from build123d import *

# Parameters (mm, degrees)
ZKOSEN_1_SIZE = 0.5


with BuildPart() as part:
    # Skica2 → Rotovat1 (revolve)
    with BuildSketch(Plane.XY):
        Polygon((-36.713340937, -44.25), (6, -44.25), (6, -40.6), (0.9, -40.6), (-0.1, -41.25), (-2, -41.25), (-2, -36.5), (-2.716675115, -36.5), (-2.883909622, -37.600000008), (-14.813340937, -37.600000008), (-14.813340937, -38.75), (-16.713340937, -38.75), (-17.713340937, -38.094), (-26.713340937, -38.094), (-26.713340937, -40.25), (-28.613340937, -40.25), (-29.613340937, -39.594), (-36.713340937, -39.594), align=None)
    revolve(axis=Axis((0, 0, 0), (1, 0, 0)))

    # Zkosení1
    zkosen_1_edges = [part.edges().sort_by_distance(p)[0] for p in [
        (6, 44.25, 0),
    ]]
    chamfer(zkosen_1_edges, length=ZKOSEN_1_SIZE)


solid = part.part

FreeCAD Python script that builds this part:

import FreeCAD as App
import Part
import Sketcher
from FreeCAD import Vector


def edges_at(feature, points):
    """Names of the edges that pass closest to the given points."""
    edges = feature.Shape.Edges
    near = lambda p: min(range(len(edges)), key=lambda i: edges[i].distToShape(Part.Vertex(*p))[0])
    return sorted({f"Edge{near(p) + 1}" for p in points})


def add_polygon(sketch, points):
    """Adds a closed chain of lines whose ends are joined by coincident constraints."""
    first, n = sketch.GeometryCount, len(points)
    for a, b in zip(points, points[1:] + points[:1]):
        sketch.addGeometry(Part.LineSegment(App.Vector(*a, 0), App.Vector(*b, 0)), False)
    for i in range(n):
        sketch.addConstraint(Sketcher.Constraint("Coincident", first + i, 2, first + (i + 1) % n, 1))

doc = App.newDocument("Part")
body = doc.addObject("PartDesign::Body", "Body")

# Sketch on XY plane
sketch1 = body.newObject("Sketcher::SketchObject", "Sketch")
sketch1.AttachmentSupport = (doc.getObject("XY_Plane"), [""])
sketch1.MapMode = "FlatFace"
add_polygon(sketch1, [(-36.7, -44.2), (6, -44.2), (6, -40.6), (0.9, -40.6), (-0.1, -41.2), (-2, -41.2), (-2, -36.5), (-2.7, -36.5), (-2.9, -37.6), (-14.8, -37.6), (-14.8, -38.8), (-16.7, -38.8), (-17.7, -38.1), (-26.7, -38.1), (-26.7, -40.2), (-28.6, -40.2), (-29.6, -39.6), (-36.7, -39.6)])  # lines 0-17
sketch1.addConstraint([
    Sketcher.Constraint("Horizontal", 0),
    Sketcher.Constraint("Vertical", 1),
    Sketcher.Constraint("Horizontal", 2),
    Sketcher.Constraint("Horizontal", 4),
    Sketcher.Constraint("Vertical", 5),
    Sketcher.Constraint("Horizontal", 6),
    Sketcher.Constraint("Horizontal", 8),
    Sketcher.Constraint("Vertical", 9),
    Sketcher.Constraint("Horizontal", 10),
    Sketcher.Constraint("Horizontal", 12),
    Sketcher.Constraint("Vertical", 13),
    Sketcher.Constraint("Horizontal", 14),
    Sketcher.Constraint("Horizontal", 16),
    Sketcher.Constraint("Vertical", 17),
    Sketcher.Constraint("Parallel", 11, 15),
    Sketcher.Constraint("Equal", 4, 10),
    Sketcher.Constraint("Equal", 10, 14),
    Sketcher.Constraint("Equal", 11, 15),
    Sketcher.Constraint("DistanceX", 12, 2, 12, 1, 9.0),
    Sketcher.Constraint("DistanceX", 2, 2, 2, 1, 5.1),
    Sketcher.Constraint("DistanceX", 4, 2, 4, 1, 1.9),
    Sketcher.Constraint("DistanceX", 16, 2, 16, 1, 7.1),
    Sketcher.Constraint("DistanceX", -1, 1, 0, 2, 6.0),
    Sketcher.Constraint("DistanceX", 4, 2, -1, 1, 2.0),
    Sketcher.Constraint("DistanceY", 0, 2, 3, 2, 3.0),
    Sketcher.Constraint("DistanceY", 2, 2, 7, 2, 3.0),
    Sketcher.Constraint("DistanceX", 11, 2, 10, 2, 1.0),
    Sketcher.Constraint("DistanceY", 17, 2, 14, 2, 4.0),
    Sketcher.Constraint("DistanceY", 1, 1, 1, 2, 3.65),
    Sketcher.Constraint("DistanceY", 5, 1, 5, 2, 4.75),
    Sketcher.Constraint("DistanceY", 9, 2, 9, 1, 1.15),
    Sketcher.Constraint("DistanceY", 1, 2, -1, 1, 40.6),
    Sketcher.Constraint("DistanceY", 13, 2, 13, 1, 2.156),
    Sketcher.Constraint("DistanceX", 0, 1, 0, 2, 42.713341),
    Sketcher.Constraint("DistanceX", 8, 2, 8, 1, 11.929431),
    Sketcher.Constraint("Distance", 7, 1.11264),
])
revolution = body.newObject("PartDesign::Revolution", "Revolution")
revolution.Profile = sketch1
revolution.ReferenceAxis = (sketch1, ["H_Axis"])
revolution.Angle = 360
doc.recompute()

chamfer = body.newObject("PartDesign::Chamfer", "Chamfer")
chamfer.Base = (revolution, edges_at(revolution, [(6, 44.25, 0)]))
chamfer.Size = 0.5

doc.recompute()
